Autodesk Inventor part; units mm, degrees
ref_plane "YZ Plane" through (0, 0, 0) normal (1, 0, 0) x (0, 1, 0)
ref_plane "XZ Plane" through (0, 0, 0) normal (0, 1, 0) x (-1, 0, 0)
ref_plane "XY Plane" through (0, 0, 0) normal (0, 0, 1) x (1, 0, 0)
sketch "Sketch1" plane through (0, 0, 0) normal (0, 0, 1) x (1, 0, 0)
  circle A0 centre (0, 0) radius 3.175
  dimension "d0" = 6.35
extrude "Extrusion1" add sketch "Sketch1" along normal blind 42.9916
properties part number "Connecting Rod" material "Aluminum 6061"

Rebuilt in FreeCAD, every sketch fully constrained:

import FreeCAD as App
import Part
import Sketcher
Q = App.Units.Quantity

doc = App.newDocument("Part")
body = doc.addObject("PartDesign::Body", "Body")

sketch1 = doc.addObject("Sketcher::SketchObject", "Sketch")
body.addObject(sketch1)
sketch1.AttachmentSupport = (doc.XY_Plane, [""])
sketch1.MapMode = "FlatFace"
sketch1.addGeometry(Part.Circle(App.Vector(0, 0, 0), App.Vector(0, 0, 1), 3.2), False)
sketch1.addConstraint([
    Sketcher.Constraint("Coincident", 0, 3, -1, 1),
    Sketcher.Constraint("Diameter", 0, Q("0.25 in")),
])
pad1 = doc.addObject("PartDesign::Pad", "Pad")
body.addObject(pad1)
pad1.Profile = sketch1
pad1.Length = 42.9916

doc.recompute()
